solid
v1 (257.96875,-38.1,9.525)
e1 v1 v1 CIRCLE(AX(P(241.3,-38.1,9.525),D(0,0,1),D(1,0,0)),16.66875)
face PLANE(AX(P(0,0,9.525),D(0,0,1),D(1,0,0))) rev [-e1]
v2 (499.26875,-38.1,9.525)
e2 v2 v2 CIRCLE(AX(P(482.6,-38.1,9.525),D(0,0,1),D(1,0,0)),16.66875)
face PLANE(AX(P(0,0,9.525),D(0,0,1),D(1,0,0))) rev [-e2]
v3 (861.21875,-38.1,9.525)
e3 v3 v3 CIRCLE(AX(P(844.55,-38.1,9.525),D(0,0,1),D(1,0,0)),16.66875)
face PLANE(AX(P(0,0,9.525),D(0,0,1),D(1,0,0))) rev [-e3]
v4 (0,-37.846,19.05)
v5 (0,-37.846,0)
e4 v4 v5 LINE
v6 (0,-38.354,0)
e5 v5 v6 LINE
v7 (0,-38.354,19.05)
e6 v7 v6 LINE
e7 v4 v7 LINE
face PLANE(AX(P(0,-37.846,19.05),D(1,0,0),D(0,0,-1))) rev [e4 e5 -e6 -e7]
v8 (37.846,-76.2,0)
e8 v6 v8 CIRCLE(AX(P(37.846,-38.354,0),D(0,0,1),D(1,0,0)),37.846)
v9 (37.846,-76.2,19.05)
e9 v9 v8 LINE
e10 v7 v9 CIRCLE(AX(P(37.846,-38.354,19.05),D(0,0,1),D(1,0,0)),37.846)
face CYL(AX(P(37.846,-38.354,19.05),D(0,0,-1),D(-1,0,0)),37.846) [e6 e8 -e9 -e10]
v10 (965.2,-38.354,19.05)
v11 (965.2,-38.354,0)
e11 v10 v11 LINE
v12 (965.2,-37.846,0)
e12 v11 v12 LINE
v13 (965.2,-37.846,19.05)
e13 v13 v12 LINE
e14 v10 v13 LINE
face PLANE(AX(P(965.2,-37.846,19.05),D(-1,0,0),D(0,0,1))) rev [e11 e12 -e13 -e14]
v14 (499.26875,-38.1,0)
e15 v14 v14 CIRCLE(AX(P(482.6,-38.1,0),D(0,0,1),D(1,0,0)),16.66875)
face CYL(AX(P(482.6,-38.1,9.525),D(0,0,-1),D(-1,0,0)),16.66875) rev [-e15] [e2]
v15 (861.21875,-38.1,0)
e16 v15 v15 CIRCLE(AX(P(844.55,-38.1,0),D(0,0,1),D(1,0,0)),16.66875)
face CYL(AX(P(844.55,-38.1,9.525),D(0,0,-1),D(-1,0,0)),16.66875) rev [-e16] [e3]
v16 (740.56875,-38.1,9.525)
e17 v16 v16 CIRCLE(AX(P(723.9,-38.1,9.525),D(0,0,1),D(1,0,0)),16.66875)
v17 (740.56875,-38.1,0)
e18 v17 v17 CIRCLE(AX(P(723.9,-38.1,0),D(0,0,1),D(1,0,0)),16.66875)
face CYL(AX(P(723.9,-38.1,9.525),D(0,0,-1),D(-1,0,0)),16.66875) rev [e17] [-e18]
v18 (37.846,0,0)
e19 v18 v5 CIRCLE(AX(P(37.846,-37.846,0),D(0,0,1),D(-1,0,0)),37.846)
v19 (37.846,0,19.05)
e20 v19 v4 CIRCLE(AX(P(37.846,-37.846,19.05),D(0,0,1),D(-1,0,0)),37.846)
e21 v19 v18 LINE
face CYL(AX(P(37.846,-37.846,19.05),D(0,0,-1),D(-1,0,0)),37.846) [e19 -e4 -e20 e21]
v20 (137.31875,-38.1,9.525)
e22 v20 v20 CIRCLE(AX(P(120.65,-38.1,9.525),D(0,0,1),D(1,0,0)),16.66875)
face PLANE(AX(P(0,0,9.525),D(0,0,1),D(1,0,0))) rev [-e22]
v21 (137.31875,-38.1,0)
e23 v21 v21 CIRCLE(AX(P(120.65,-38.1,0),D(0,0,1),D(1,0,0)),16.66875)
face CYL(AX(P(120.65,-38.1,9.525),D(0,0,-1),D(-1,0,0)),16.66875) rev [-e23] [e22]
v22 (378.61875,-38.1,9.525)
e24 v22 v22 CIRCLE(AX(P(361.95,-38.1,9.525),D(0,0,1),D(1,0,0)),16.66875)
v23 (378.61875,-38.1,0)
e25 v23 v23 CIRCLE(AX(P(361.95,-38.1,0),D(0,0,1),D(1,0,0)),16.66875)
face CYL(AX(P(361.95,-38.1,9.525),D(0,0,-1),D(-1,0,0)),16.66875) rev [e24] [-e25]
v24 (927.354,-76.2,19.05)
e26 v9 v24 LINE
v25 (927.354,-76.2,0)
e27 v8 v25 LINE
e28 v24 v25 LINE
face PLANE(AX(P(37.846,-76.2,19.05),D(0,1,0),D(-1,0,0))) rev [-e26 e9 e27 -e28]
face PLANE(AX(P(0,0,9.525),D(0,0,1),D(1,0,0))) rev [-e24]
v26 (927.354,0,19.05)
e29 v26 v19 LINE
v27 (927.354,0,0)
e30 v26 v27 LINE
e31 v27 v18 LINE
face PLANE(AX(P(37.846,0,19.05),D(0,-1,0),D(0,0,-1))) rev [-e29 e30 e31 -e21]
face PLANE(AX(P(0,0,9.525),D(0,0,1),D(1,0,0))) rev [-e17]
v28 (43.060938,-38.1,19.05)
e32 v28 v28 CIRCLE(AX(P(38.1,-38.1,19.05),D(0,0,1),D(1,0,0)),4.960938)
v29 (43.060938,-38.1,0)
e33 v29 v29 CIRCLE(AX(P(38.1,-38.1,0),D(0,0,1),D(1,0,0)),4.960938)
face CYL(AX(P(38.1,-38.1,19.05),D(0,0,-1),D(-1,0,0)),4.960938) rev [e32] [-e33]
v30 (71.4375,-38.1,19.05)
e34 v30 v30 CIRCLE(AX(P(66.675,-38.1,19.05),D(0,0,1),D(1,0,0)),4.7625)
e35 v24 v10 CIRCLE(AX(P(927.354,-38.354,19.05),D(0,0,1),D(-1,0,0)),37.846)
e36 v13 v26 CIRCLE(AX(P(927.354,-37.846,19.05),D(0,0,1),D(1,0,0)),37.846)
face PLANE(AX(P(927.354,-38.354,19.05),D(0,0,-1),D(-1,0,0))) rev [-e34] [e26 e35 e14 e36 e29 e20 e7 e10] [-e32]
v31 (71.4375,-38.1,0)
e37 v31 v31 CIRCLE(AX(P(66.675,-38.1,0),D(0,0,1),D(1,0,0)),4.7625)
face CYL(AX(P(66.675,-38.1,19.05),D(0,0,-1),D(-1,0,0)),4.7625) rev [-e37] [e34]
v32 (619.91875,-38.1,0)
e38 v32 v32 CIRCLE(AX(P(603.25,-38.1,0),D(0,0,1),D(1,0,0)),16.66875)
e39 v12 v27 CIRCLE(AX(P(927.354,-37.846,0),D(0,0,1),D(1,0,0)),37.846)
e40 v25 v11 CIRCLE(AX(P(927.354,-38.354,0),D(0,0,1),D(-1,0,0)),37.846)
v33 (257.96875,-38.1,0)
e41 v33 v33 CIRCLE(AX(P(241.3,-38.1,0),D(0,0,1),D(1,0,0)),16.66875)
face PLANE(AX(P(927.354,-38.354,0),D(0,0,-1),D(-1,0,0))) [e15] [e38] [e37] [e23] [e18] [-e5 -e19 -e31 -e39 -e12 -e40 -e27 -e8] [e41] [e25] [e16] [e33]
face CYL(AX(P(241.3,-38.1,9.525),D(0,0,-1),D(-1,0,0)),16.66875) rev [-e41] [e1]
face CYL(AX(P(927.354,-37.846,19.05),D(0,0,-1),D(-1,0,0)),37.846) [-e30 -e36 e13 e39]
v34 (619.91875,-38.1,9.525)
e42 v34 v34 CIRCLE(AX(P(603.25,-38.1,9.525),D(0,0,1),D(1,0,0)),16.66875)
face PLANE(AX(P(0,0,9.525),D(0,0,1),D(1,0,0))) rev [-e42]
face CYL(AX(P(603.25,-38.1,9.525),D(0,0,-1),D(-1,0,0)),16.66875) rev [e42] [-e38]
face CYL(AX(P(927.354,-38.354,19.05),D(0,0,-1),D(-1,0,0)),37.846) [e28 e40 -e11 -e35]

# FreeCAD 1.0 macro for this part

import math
import FreeCAD as App
import Part
import Sketcher

V = App.Vector
Q = App.Units.Quantity

doc = App.newDocument("Part")
params = doc.addObject("Spreadsheet::Sheet", "Params")
for row, (alias, value) in enumerate([
    ("sketch1_radius", "1.49 in"),
    ("pad1_length", "0.75 in"),
    ("sketch2_diameter", "1.3125 in"),
    ("pocket1_length", "0.375 in"),
    ("sketch3_diameter", "0.390625 in"),
    ("sketch3_diameter2", "0.375 in"),
    ("pocket2_length", "0.75 in"),
], start=1):
    params.set(f"A{row}", alias)
    params.set(f"B{row}", "=" + value)
    params.setAlias(f"B{row}", alias)

body = doc.addObject("PartDesign::Body", "Body")

# Sketch on XY plane
sketch1 = body.newObject("Sketcher::SketchObject", "Sketch")
sketch1.AttachmentSupport = (doc.getObject("XY_Plane"), [""])
sketch1.MapMode = "FlatFace"
sketch1.addGeometry(Part.LineSegment(V(927.4, 0, 0), V(37.8, 0, 0)), False)
sketch1.addGeometry(Part.ArcOfCircle(Part.Circle(V(37.8, -37.8, 0), V(0, 0, 1), 37.8), math.radians(90), math.radians(180)), False)
sketch1.addGeometry(Part.LineSegment(V(0, -37.8, 0), V(0, -38.4, 0)), False)
sketch1.addGeometry(Part.ArcOfCircle(Part.Circle(V(37.8, -38.4, 0), V(0, 0, 1), 37.8), math.radians(180), math.radians(270)), False)
sketch1.addGeometry(Part.LineSegment(V(37.8, -76.2, 0), V(927.4, -76.2, 0)), False)
sketch1.addGeometry(Part.ArcOfCircle(Part.Circle(V(927.4, -38.4, 0), V(0, 0, 1), 37.8), math.radians(-90), math.radians(0)), False)
sketch1.addGeometry(Part.LineSegment(V(965.2, -38.4, 0), V(965.2, -37.8, 0)), False)
sketch1.addGeometry(Part.ArcOfCircle(Part.Circle(V(927.4, -37.8, 0), V(0, 0, 1), 37.8), math.radians(0), math.radians(90)), False)
sketch1.addConstraint(Sketcher.Constraint("Tangent", 0, 2, 1, 1))
sketch1.addConstraint(Sketcher.Constraint("Tangent", 1, 2, 2, 1))
sketch1.addConstraint(Sketcher.Constraint("Tangent", 2, 2, 3, 1))
sketch1.addConstraint(Sketcher.Constraint("Tangent", 3, 2, 4, 1))
sketch1.addConstraint(Sketcher.Constraint("Tangent", 4, 2, 5, 1))
sketch1.addConstraint(Sketcher.Constraint("Tangent", 5, 2, 6, 1))
sketch1.addConstraint(Sketcher.Constraint("Tangent", 6, 2, 7, 1))
sketch1.addConstraint(Sketcher.Constraint("Tangent", 7, 2, 0, 1))
sketch1.addConstraint(Sketcher.Constraint("Horizontal", 0))
sketch1.addConstraint(Sketcher.Constraint("Vertical", 2))
sketch1.addConstraint(Sketcher.Constraint("Horizontal", 4))
sketch1.addConstraint(Sketcher.Constraint("Vertical", 6))
sketch1.addConstraint(Sketcher.Constraint("Equal", 1, 3))
sketch1.addConstraint(Sketcher.Constraint("Equal", 3, 5))
sketch1.addConstraint(Sketcher.Constraint("Equal", 5, 7))
sketch1.addConstraint(Sketcher.Constraint("PointOnObject", 0, 2, -1))
sketch1.addConstraint(Sketcher.Constraint("PointOnObject", 1, 2, -2))
sketch1.addConstraint(Sketcher.Constraint("Radius", 1, Q("1.49 in")))
sketch1.addConstraint(Sketcher.Constraint("DistanceY", 3, 2, -1, 1, Q("3 in")))
sketch1.addConstraint(Sketcher.Constraint("DistanceX", -1, 1, 5, 2, Q("38 in")))
sketch1.setExpression("Constraints[17]", "Params.sketch1_radius")
pad1 = body.newObject("PartDesign::Pad", "Pad")
pad1.Profile = sketch1
pad1.setExpression("Length", "Params.pad1_length")

# Sketch on XY plane
sketch2 = body.newObject("Sketcher::SketchObject", "Sketch001")
sketch2.AttachmentSupport = (doc.getObject("XY_Plane"), [""])
sketch2.MapMode = "FlatFace"
sketch2.addGeometry(Part.Circle(V(121, -38, 0), V(0, 0, 1), 17), False)
sketch2.addGeometry(Part.Circle(V(241, -38, 0), V(0, 0, 1), 17), False)
sketch2.addGeometry(Part.Circle(V(362, -38, 0), V(0, 0, 1), 17), False)
sketch2.addGeometry(Part.Circle(V(845, -38, 0), V(0, 0, 1), 17), False)
sketch2.addGeometry(Part.Circle(V(724, -38, 0), V(0, 0, 1), 17), False)
sketch2.addGeometry(Part.Circle(V(603, -38, 0), V(0, 0, 1), 17), False)
sketch2.addGeometry(Part.Circle(V(483, -38, 0), V(0, 0, 1), 17), False)
sketch2.addConstraint(Sketcher.Constraint("Equal", 0, 1))
sketch2.addConstraint(Sketcher.Constraint("Equal", 1, 2))
sketch2.addConstraint(Sketcher.Constraint("Equal", 2, 3))
sketch2.addConstraint(Sketcher.Constraint("Equal", 3, 4))
sketch2.addConstraint(Sketcher.Constraint("Equal", 4, 5))
sketch2.addConstraint(Sketcher.Constraint("Equal", 5, 6))
sketch2.addConstraint(Sketcher.Constraint("Horizontal", 0, 3, 1, 3))
sketch2.addConstraint(Sketcher.Constraint("Horizontal", 1, 3, 2, 3))
sketch2.addConstraint(Sketcher.Constraint("Horizontal", 2, 3, 3, 3))
sketch2.addConstraint(Sketcher.Constraint("Horizontal", 3, 3, 4, 3))
sketch2.addConstraint(Sketcher.Constraint("Horizontal", 4, 3, 5, 3))
sketch2.addConstraint(Sketcher.Constraint("Horizontal", 5, 3, 6, 3))
sketch2.addConstraint(Sketcher.Constraint("Diameter", 0, Q("1.3125 in")))
sketch2.addConstraint(Sketcher.Constraint("DistanceX", -1, 1, 6, 3, Q("19 in")))
sketch2.addConstraint(Sketcher.Constraint("DistanceX", 2, 3, 3, 3, Q("19 in")))
sketch2.addConstraint(Sketcher.Constraint("DistanceX", 1, 3, 4, 3, Q("19 in")))
sketch2.addConstraint(Sketcher.Constraint("DistanceX", 0, 3, 5, 3, Q("19 in")))
sketch2.addConstraint(Sketcher.Constraint("DistanceY", 0, 3, -1, 1, Q("1.5 in")))
sketch2.addConstraint(Sketcher.Constraint("DistanceX", -1, 1, 1, 3, Q("9.5 in")))
sketch2.addConstraint(Sketcher.Constraint("DistanceX", 0, 3, 2, 3, Q("9.5 in")))
sketch2.addConstraint(Sketcher.Constraint("DistanceX", -1, 1, 0, 3, Q("4.75 in")))
sketch2.setExpression("Constraints[12]", "Params.sketch2_diameter")
pocket1 = body.newObject("PartDesign::Pocket", "Pocket")
pocket1.Profile = sketch2
pocket1.setExpression("Length", "Params.pocket1_length")
pocket1.Reversed = True

# Sketch on XY plane
sketch3 = body.newObject("Sketcher::SketchObject", "Sketch002")
sketch3.AttachmentSupport = (doc.getObject("XY_Plane"), [""])
sketch3.MapMode = "FlatFace"
sketch3.addGeometry(Part.Circle(V(38.1, -38.1, 0), V(0, 0, 1), 5), False)
sketch3.addGeometry(Part.Circle(V(66.7, -38.1, 0), V(0, 0, 1), 4.8), False)
sketch3.addConstraint(Sketcher.Constraint("Horizontal", 0, 3, 1, 3))
sketch3.addConstraint(Sketcher.Constraint("Diameter", 0, Q("0.390625 in")))
sketch3.addConstraint(Sketcher.Constraint("Diameter", 1, Q("0.375 in")))
sketch3.addConstraint(Sketcher.Constraint("DistanceX", -1, 1, 0, 3, Q("1.5 in")))
sketch3.addConstraint(Sketcher.Constraint("DistanceY", 0, 3, -1, 1, Q("1.5 in")))
sketch3.addConstraint(Sketcher.Constraint("DistanceX", -1, 1, 1, 3, Q("2.625 in")))
sketch3.setExpression("Constraints[1]", "Params.sketch3_diameter")
sketch3.setExpression("Constraints[2]", "Params.sketch3_diameter2")
pocket2 = body.newObject("PartDesign::Pocket", "Pocket001")
pocket2.Profile = sketch3
pocket2.setExpression("Length", "Params.pocket2_length")
pocket2.Reversed = True

doc.recompute()
